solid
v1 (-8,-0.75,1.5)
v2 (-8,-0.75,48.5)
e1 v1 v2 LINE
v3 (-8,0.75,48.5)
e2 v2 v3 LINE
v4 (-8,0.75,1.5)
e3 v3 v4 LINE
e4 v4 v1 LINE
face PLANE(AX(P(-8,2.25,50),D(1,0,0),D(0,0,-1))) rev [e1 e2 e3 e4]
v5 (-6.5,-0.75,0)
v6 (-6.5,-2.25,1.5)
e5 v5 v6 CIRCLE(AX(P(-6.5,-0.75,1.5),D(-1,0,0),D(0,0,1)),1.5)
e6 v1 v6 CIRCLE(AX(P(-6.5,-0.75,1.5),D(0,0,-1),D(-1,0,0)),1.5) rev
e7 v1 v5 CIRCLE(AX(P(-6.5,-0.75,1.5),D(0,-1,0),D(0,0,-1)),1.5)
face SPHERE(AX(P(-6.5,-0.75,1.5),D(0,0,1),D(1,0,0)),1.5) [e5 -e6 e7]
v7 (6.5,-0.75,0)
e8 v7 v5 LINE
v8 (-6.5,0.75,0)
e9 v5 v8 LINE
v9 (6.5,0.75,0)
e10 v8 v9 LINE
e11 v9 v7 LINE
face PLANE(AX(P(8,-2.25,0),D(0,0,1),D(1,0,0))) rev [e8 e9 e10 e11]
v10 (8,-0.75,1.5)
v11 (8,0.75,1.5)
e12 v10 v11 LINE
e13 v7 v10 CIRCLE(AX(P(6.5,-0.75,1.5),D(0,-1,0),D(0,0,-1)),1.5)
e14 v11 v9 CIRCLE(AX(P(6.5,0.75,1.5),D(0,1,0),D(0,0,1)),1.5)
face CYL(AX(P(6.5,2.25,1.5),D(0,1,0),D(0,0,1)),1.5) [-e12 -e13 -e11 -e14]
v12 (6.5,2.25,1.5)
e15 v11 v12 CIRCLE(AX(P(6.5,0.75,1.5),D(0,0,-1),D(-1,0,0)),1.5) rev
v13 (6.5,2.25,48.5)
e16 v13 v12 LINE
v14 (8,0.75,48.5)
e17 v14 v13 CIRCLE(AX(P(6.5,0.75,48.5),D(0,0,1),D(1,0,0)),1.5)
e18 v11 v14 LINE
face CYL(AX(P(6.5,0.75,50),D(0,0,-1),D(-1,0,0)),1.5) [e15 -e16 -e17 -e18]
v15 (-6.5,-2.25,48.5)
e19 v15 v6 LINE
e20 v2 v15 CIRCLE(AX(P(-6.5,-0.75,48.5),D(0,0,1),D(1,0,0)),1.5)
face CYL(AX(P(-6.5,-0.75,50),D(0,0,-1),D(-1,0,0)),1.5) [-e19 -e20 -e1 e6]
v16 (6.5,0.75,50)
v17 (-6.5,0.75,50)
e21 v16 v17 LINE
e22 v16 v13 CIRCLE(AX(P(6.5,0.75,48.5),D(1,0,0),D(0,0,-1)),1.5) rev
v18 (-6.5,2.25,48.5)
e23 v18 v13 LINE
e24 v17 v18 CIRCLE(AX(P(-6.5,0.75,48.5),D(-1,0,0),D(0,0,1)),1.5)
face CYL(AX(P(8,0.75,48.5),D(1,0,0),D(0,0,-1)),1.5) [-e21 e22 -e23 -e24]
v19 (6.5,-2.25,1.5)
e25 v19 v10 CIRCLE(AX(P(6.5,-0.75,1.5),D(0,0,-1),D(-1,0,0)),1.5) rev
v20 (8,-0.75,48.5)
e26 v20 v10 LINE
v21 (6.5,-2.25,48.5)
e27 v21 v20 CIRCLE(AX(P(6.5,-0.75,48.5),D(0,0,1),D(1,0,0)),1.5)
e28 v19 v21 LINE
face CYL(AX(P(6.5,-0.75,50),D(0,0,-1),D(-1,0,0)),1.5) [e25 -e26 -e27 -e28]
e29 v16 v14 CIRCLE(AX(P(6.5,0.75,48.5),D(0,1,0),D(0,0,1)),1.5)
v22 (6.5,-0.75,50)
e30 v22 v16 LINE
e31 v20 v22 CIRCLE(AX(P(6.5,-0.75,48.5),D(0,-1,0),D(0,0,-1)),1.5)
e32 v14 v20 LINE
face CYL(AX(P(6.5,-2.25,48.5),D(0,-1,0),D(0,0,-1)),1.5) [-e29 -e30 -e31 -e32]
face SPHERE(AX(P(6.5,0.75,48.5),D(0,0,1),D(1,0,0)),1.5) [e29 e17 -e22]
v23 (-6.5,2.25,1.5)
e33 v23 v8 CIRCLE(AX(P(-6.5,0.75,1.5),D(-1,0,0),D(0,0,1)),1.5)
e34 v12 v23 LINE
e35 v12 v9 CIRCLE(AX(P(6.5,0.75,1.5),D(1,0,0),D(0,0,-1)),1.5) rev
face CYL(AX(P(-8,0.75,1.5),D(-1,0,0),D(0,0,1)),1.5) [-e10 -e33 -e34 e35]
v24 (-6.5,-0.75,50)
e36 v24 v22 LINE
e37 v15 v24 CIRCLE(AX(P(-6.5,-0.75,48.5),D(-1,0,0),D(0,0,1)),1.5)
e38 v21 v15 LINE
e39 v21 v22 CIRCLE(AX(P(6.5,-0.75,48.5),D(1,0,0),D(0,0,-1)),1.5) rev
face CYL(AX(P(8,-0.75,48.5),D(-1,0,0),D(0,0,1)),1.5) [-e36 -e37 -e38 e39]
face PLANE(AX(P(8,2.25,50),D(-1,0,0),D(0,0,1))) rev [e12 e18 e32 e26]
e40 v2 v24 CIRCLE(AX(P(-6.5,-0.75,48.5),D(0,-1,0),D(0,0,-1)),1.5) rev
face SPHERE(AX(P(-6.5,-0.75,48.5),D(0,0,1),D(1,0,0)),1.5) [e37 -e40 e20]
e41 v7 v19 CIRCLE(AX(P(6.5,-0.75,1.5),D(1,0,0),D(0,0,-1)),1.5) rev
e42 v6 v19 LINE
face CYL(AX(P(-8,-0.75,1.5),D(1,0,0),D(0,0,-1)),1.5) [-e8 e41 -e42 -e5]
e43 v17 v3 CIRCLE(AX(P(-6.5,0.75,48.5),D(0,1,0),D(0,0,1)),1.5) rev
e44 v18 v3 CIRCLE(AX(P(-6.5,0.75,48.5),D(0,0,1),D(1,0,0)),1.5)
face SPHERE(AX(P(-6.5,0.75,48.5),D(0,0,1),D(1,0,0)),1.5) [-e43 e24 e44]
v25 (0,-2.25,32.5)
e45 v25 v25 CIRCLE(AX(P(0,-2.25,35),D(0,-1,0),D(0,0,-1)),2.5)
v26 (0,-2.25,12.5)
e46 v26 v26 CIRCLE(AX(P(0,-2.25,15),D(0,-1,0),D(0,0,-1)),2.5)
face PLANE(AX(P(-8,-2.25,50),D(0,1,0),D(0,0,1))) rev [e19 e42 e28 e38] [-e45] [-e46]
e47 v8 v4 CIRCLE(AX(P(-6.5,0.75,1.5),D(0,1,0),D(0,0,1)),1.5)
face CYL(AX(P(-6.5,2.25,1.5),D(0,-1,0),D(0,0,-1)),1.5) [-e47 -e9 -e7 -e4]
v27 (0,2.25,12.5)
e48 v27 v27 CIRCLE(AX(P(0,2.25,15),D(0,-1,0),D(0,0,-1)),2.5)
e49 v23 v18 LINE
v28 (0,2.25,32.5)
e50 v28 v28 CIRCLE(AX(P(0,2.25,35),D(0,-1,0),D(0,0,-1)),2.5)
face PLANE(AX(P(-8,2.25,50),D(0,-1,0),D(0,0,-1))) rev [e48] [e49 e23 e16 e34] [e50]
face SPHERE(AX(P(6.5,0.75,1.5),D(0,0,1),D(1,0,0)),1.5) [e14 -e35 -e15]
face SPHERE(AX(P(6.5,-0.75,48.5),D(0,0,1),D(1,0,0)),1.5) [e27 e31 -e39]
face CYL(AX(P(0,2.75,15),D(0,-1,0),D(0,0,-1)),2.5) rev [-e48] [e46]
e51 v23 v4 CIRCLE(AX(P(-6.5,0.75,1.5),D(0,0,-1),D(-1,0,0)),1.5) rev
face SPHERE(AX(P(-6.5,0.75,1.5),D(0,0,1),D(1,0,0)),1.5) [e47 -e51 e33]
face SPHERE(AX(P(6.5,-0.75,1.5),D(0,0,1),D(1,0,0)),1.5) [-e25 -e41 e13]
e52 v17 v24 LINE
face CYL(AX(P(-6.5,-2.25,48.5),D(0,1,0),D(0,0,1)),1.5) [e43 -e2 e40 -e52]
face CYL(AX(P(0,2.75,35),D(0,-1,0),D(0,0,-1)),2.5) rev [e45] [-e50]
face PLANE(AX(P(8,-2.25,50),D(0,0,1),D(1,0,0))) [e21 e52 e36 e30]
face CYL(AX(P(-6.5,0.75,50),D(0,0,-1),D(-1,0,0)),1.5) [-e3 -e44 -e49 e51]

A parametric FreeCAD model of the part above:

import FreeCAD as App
import Part
import Sketcher

V = App.Vector
Q = App.Units.Quantity


def add_polygon(sketch, points):
    """Adds a closed chain of lines whose ends are joined by coincident constraints."""
    first, n = sketch.GeometryCount, len(points)
    for a, b in zip(points, points[1:] + points[:1]):
        sketch.addGeometry(Part.LineSegment(App.Vector(*a, 0), App.Vector(*b, 0)), False)
    for i in range(n):
        sketch.addConstraint(Sketcher.Constraint("Coincident", first + i, 2, first + (i + 1) % n, 1))

doc = App.newDocument("Part")
body = doc.addObject("PartDesign::Body", "Body")

sketch1 = body.newObject("Sketcher::SketchObject", "Sketch")
sketch1.AttachmentSupport = (doc.getObject("XY_Plane"), [""])
sketch1.MapMode = "FlatFace"
add_polygon(sketch1, [(-8, 2.2), (-8, -2.2), (8, -2.2), (8, 2.2)])
sketch1.addConstraint([
    Sketcher.Constraint("Vertical", 0),
    Sketcher.Constraint("Horizontal", 1),
    Sketcher.Constraint("Vertical", 2),
    Sketcher.Constraint("Horizontal", 3),
    Sketcher.Constraint("Symmetric", 0, 2, 2, 2, -1, 1),
    Sketcher.Constraint("DistanceX", 1, 1, 1, 2, Q("16 mm")),
    Sketcher.Constraint("DistanceY", 0, 2, 0, 1, Q("4.5 mm")),
])
pad1 = body.newObject("PartDesign::Pad", "Pad")
pad1.Profile = sketch1
pad1.Length = 50
doc.recompute()

fillet = body.newObject("PartDesign::Fillet", "Fillet")
fillet.Base = (pad1, ["Edge1"])
fillet.UseAllEdges = True
fillet.Radius = 1.5

sketch2 = body.newObject("Sketcher::SketchObject", "Sketch001")
sketch2.AttachmentSupport = (doc.getObject("XZ_Plane"), [""])
sketch2.MapMode = "FlatFace"
sketch2.AttachmentOffset = App.Placement(V(0, 0, 2.25), App.Rotation())
sketch2.addGeometry([
    Part.Circle(V(0, 15, 0), V(0, 0, 1), 2.5),
    Part.Circle(V(0, 35, 0), V(0, 0, 1), 2.5),
], False)
sketch2.addConstraint([
    Sketcher.Constraint("Equal", 0, 1),
    Sketcher.Constraint("PointOnObject", 0, 3, -2),
    Sketcher.Constraint("PointOnObject", 1, 3, -2),
    Sketcher.Constraint("Diameter", 0, Q("5 mm")),
    Sketcher.Constraint("DistanceY", -1, 1, 0, 3, Q("15 mm")),
    Sketcher.Constraint("DistanceY", -1, 1, 1, 3, Q("35 mm")),
])
pocket1 = body.newObject("PartDesign::Pocket", "Pocket")
pocket1.Profile = sketch2
pocket1.Length = 5

doc.recompute()
